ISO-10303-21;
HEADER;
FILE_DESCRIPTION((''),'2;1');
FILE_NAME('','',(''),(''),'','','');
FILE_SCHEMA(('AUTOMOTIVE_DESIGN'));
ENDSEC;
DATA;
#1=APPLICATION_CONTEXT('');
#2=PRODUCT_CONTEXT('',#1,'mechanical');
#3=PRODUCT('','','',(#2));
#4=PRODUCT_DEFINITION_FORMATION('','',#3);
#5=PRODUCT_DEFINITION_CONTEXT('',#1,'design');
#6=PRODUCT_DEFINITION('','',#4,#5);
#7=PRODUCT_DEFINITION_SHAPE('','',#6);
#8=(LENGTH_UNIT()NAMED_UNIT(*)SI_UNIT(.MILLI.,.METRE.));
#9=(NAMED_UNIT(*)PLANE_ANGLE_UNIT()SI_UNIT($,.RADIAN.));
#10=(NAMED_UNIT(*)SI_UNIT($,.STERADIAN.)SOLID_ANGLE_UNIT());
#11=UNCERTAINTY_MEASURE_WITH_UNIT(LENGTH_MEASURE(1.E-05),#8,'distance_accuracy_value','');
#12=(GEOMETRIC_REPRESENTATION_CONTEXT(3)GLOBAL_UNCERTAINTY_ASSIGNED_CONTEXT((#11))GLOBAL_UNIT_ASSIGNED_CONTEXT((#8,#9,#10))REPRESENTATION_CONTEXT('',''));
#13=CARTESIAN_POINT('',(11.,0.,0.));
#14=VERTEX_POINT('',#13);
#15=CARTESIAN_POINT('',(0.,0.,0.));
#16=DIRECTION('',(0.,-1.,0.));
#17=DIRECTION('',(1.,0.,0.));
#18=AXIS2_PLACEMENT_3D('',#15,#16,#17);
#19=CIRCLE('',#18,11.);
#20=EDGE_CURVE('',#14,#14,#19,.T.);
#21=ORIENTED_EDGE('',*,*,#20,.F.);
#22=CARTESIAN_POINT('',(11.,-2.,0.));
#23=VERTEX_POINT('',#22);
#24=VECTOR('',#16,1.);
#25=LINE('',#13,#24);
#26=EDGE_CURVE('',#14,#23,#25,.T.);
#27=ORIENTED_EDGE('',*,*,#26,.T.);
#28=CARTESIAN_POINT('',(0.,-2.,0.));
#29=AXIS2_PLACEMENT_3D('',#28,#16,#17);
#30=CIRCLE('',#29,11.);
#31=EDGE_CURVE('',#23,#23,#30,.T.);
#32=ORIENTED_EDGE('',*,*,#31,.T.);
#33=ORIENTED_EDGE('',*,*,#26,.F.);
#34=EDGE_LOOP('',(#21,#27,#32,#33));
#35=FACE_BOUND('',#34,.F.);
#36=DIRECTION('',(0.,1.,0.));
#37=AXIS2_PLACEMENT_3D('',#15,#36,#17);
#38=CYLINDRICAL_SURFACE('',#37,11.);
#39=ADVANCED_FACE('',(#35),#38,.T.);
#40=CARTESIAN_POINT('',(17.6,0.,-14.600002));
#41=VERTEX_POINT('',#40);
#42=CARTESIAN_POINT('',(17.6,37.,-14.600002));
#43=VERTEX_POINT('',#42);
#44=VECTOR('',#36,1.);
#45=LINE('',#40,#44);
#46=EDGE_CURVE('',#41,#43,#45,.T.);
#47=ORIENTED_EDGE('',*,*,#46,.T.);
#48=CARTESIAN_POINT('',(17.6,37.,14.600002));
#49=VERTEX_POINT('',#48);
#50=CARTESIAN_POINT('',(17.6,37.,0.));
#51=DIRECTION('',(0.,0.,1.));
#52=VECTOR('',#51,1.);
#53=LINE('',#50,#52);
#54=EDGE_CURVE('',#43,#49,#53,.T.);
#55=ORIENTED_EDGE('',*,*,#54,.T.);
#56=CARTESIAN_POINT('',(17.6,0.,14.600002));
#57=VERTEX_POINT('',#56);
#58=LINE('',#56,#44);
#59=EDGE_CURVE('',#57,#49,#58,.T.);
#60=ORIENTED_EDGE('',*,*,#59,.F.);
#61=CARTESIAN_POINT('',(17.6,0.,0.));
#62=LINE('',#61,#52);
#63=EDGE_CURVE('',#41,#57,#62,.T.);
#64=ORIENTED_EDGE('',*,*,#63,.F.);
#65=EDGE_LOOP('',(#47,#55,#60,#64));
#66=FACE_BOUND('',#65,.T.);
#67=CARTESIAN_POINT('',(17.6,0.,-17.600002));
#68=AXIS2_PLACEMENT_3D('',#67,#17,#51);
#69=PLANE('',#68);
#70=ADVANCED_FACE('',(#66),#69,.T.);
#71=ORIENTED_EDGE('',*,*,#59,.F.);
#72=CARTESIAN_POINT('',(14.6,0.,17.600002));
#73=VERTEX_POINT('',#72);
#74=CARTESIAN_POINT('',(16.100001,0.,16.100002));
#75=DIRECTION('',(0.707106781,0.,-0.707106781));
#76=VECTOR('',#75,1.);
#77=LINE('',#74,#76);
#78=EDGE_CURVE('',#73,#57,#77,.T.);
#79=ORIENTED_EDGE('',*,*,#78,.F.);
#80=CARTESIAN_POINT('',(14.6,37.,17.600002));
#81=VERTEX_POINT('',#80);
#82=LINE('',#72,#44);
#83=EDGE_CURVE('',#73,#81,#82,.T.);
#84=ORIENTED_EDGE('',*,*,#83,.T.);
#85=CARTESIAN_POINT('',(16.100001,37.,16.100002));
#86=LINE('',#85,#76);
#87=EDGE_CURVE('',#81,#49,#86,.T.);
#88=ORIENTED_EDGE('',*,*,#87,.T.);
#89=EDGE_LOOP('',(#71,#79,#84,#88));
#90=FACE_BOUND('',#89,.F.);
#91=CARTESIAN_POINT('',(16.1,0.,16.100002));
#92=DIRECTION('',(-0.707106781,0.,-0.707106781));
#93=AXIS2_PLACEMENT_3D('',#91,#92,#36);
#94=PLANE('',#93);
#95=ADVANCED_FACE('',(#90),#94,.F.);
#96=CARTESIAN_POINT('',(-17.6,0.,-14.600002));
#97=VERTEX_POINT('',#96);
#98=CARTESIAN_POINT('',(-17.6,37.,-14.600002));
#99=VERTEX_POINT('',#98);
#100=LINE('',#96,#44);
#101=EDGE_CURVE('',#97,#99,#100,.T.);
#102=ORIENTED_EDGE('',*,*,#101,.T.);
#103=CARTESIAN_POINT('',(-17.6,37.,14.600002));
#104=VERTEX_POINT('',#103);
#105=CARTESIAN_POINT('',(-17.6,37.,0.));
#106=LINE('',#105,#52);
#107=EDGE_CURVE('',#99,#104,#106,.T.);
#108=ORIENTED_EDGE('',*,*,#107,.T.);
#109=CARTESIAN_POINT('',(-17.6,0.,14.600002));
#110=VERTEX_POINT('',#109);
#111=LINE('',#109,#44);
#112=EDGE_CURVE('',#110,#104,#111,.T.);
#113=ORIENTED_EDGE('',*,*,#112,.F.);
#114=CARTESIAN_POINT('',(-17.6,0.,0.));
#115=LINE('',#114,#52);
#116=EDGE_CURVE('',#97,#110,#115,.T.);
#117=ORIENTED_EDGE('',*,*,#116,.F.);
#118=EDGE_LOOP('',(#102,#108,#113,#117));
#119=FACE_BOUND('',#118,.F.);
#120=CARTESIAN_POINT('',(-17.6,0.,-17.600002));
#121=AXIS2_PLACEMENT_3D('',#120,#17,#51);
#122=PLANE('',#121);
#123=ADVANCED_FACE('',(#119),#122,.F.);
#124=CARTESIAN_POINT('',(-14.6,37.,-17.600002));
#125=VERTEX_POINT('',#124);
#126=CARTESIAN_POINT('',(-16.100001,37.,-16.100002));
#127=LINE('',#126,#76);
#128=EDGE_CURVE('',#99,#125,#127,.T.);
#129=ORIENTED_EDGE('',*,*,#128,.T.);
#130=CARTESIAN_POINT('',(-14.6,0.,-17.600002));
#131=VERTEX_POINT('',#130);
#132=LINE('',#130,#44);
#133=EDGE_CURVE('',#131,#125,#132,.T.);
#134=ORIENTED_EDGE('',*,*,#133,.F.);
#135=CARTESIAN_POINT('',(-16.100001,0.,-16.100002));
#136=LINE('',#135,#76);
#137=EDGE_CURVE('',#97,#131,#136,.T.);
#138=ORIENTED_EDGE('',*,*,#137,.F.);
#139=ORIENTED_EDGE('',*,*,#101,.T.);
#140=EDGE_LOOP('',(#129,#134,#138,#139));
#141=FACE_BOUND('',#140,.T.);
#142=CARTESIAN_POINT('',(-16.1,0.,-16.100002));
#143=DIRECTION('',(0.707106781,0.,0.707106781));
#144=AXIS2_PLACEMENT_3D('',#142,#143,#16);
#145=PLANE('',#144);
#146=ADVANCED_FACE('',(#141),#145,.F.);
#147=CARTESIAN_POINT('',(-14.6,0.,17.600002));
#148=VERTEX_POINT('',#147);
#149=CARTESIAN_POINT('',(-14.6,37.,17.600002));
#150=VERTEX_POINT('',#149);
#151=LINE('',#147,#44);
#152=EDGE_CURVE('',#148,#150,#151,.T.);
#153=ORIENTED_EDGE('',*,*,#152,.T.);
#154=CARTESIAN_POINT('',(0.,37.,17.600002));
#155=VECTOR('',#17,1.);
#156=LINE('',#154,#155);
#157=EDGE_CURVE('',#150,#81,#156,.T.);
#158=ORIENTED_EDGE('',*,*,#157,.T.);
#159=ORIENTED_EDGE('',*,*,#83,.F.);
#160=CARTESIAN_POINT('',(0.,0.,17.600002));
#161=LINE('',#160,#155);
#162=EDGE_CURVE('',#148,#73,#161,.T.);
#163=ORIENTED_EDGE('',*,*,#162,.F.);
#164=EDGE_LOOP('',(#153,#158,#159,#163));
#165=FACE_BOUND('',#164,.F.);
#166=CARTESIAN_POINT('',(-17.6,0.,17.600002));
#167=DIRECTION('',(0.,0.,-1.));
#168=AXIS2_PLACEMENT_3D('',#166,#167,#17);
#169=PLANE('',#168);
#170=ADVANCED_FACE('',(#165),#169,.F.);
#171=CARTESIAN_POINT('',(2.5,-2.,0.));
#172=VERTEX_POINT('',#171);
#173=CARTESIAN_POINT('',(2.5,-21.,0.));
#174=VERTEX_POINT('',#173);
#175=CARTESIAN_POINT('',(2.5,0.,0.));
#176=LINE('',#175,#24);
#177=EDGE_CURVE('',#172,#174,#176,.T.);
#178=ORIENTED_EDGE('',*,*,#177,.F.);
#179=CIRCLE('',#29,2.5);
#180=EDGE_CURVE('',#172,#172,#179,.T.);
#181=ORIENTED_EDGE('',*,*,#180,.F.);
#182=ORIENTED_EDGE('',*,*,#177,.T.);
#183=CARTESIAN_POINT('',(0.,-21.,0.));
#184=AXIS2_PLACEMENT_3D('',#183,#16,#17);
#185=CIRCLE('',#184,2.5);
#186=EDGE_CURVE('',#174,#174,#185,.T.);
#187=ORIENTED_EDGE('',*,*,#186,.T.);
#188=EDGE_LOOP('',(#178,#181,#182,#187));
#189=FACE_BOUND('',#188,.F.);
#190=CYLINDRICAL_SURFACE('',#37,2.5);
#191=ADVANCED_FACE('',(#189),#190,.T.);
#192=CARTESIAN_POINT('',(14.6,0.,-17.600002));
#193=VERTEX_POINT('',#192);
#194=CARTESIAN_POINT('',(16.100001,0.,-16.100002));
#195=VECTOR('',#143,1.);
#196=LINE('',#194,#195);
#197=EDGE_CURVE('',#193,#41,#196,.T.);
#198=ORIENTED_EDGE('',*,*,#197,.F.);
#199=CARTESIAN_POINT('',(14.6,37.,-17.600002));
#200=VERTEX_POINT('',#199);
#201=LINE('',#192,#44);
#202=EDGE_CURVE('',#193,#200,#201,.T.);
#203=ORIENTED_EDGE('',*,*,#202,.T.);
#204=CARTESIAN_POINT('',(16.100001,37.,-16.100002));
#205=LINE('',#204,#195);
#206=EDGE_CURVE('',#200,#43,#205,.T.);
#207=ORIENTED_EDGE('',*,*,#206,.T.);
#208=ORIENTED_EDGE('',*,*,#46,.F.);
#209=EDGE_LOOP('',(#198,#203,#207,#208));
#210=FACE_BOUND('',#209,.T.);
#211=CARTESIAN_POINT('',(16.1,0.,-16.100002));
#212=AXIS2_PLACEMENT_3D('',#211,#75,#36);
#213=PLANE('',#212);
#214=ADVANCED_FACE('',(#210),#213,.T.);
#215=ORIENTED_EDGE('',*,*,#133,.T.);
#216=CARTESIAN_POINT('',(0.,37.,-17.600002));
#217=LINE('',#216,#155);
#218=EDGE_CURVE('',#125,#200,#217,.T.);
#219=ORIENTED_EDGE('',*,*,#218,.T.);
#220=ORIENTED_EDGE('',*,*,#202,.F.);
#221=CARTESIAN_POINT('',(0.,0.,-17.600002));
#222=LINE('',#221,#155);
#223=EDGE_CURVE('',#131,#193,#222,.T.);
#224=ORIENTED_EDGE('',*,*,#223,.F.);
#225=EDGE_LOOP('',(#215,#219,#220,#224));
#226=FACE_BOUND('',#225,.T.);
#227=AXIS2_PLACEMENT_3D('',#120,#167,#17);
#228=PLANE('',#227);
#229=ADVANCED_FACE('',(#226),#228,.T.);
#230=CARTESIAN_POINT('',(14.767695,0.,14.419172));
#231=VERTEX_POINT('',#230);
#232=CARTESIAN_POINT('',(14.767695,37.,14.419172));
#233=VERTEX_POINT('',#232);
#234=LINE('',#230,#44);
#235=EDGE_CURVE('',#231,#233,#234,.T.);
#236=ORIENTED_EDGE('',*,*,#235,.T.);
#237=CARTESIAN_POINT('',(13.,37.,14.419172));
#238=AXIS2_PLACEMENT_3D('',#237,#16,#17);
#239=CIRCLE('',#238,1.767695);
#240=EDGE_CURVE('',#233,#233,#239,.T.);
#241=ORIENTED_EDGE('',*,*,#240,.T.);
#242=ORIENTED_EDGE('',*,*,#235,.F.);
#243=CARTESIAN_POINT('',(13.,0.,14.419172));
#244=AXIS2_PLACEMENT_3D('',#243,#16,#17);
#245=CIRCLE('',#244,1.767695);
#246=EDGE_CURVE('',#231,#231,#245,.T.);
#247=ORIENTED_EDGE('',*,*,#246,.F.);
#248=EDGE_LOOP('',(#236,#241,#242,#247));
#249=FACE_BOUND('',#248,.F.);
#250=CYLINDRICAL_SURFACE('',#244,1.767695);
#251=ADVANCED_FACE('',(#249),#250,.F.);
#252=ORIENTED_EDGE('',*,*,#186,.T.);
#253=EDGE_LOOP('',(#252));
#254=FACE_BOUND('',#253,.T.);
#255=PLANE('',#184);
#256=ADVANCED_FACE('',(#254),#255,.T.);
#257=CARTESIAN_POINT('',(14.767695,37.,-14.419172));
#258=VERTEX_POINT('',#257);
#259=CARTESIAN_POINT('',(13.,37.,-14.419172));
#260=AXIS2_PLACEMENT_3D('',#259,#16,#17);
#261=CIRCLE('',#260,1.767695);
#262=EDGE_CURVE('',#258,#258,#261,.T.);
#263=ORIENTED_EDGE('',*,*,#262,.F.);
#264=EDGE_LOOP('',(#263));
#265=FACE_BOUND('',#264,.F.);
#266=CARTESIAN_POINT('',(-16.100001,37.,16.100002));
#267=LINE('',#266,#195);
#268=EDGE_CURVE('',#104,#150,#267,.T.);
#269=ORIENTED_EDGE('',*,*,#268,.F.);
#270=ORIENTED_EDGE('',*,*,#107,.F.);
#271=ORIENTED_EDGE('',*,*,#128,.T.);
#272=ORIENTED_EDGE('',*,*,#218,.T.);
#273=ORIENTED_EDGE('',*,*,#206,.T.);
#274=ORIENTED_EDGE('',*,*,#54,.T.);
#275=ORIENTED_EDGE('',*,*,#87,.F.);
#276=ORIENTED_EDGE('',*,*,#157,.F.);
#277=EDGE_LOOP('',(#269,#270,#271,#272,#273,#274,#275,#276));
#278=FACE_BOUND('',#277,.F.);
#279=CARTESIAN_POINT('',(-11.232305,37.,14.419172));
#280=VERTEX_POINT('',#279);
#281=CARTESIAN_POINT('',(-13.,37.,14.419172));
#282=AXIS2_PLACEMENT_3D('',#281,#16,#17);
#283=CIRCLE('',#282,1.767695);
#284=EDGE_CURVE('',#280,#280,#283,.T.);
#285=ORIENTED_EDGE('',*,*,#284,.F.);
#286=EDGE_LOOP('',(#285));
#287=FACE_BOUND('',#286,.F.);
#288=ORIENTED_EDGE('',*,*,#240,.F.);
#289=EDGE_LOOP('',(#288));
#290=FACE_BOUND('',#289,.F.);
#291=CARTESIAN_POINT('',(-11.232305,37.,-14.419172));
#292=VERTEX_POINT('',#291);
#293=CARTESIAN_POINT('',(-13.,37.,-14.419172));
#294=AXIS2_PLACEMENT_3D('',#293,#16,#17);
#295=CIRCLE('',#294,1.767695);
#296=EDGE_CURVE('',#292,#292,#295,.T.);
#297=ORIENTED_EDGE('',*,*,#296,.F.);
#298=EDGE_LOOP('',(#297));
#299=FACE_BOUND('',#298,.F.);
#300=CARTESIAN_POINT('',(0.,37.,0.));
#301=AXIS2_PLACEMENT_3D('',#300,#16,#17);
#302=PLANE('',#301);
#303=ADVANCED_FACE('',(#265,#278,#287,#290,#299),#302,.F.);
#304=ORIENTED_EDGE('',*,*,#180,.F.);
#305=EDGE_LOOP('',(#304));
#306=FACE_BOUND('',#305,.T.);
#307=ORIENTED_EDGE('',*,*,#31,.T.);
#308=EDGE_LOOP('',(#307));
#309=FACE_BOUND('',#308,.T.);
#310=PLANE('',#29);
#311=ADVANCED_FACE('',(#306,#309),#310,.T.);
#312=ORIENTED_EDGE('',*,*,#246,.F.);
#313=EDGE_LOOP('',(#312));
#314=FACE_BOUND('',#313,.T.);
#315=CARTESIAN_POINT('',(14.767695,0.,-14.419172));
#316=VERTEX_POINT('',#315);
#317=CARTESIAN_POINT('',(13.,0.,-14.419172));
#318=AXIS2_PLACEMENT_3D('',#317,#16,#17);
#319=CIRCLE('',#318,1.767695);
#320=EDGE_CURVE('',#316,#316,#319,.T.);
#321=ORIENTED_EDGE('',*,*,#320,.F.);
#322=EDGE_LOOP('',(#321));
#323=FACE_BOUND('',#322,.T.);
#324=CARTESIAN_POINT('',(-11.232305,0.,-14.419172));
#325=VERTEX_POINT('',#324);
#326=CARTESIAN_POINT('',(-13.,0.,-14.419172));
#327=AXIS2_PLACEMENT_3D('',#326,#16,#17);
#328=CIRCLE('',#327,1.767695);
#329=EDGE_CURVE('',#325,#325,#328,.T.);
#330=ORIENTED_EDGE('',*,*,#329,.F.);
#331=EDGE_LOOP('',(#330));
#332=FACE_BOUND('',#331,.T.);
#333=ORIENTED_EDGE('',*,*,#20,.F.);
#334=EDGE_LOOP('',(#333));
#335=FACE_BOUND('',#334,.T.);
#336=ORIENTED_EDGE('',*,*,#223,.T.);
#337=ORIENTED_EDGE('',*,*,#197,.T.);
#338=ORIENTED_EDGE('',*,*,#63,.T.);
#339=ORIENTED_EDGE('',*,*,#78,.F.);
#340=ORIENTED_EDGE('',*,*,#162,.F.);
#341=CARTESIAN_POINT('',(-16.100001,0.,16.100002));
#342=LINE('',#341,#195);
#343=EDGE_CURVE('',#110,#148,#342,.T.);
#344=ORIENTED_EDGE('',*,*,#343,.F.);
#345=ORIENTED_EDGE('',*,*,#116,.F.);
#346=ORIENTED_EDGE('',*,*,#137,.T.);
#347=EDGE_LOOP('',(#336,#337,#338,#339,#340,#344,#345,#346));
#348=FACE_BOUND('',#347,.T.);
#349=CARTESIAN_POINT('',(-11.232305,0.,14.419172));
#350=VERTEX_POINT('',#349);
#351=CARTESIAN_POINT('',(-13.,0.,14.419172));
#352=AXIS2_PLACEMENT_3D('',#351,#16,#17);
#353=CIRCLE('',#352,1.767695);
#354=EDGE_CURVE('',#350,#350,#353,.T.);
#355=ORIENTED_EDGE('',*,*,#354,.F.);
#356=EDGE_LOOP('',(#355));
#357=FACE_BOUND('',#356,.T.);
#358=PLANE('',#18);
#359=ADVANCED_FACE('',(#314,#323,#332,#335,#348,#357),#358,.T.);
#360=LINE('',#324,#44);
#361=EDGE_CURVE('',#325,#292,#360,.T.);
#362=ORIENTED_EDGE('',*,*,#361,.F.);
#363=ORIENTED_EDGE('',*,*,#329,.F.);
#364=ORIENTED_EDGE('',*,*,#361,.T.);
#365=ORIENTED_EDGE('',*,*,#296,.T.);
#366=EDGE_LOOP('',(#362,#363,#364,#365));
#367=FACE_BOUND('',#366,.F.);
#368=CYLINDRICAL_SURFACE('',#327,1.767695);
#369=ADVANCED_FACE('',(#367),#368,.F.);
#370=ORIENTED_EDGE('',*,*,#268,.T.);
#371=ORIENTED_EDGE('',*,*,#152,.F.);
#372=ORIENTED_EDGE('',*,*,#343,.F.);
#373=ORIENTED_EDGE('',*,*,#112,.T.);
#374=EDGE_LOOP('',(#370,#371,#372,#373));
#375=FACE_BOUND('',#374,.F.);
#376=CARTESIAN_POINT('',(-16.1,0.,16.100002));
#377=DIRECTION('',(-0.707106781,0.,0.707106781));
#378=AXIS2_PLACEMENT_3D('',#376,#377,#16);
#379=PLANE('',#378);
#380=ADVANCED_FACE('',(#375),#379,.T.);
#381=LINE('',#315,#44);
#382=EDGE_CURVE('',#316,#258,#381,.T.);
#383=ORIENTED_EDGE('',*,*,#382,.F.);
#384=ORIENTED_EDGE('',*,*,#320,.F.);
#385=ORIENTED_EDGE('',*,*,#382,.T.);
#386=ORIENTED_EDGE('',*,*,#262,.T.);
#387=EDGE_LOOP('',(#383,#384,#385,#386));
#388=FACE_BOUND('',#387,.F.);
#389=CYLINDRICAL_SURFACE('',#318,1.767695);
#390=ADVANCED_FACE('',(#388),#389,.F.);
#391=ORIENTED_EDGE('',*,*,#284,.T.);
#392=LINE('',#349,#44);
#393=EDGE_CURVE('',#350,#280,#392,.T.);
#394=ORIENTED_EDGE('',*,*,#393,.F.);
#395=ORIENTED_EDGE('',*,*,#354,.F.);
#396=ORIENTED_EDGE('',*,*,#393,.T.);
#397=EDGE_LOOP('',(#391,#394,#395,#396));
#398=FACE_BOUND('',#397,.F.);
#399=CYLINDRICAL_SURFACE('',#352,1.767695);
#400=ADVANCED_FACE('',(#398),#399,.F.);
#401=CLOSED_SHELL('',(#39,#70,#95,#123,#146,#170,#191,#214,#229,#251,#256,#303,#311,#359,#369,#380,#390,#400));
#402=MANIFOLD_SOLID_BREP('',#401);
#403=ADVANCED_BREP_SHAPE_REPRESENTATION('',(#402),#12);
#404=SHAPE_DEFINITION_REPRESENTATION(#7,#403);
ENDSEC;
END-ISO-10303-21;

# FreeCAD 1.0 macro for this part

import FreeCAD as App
import Part
import Sketcher


def edges_at(feature, points):
    """Names of the edges that pass closest to the given points."""
    edges = feature.Shape.Edges
    near = lambda p: min(range(len(edges)), key=lambda i: edges[i].distToShape(Part.Vertex(*p))[0])
    return sorted({f"Edge{near(p) + 1}" for p in points})


def add_polygon(sketch, points):
    """Adds a closed chain of lines whose ends are joined by coincident constraints."""
    first, n = sketch.GeometryCount, len(points)
    for a, b in zip(points, points[1:] + points[:1]):
        sketch.addGeometry(Part.LineSegment(App.Vector(*a, 0), App.Vector(*b, 0)), False)
    for i in range(n):
        sketch.addConstraint(Sketcher.Constraint("Coincident", first + i, 2, first + (i + 1) % n, 1))

doc = App.newDocument("Part")
body = doc.addObject("PartDesign::Body", "Body")

sketch1 = body.newObject("Sketcher::SketchObject", "Sketch")
sketch1.AttachmentSupport = (doc.getObject("XZ_Plane"), [""])
sketch1.MapMode = "FlatFace"
add_polygon(sketch1, [(-17.6, 17.6), (-17.6, -17.6), (17.6, -17.6), (17.6, 17.6)])
sketch1.addGeometry(Part.Circle(App.Vector(-13, -14.4, 0), App.Vector(0, 0, 1), 1.8), False)
sketch1.addGeometry(Part.Circle(App.Vector(13, -14.4, 0), App.Vector(0, 0, 1), 1.8), False)
sketch1.addGeometry(Part.Circle(App.Vector(-13, 14.4, 0), App.Vector(0, 0, 1), 1.8), False)
sketch1.addGeometry(Part.Circle(App.Vector(13, 14.4, 0), App.Vector(0, 0, 1), 1.8), False)
sketch1.addConstraint([
    Sketcher.Constraint("Vertical", 0),
    Sketcher.Constraint("Horizontal", 1),
    Sketcher.Constraint("Vertical", 2),
    Sketcher.Constraint("Horizontal", 3),
    Sketcher.Constraint("Equal", 4, 5),
    Sketcher.Constraint("Equal", 5, 6),
    Sketcher.Constraint("Equal", 6, 7),
    Sketcher.Constraint("Symmetric", 5, 3, 6, 3, -1, 1),
    Sketcher.Constraint("Symmetric", 4, 3, 7, 3, -1, 1),
    Sketcher.Constraint("Symmetric", 0, 2, 2, 2, -1, 1),
    Sketcher.Constraint("Symmetric", 4, 3, 5, 3, -2),
    Sketcher.Constraint("DistanceX", 1, 1, 1, 2, 35.2),
    Sketcher.Constraint("DistanceX", 4, 3, -1, 1, 13.0),
    Sketcher.Constraint("DistanceY", 0, 2, -1, 1, 17.600002),
    Sketcher.Constraint("Diameter", 4, 3.53539),
    Sketcher.Constraint("DistanceY", 0, 2, 4, 3, 3.18083),
])
pad1 = body.newObject("PartDesign::Pad", "Pad")
pad1.Profile = sketch1
pad1.Length = 37
pad1.Reversed = True

sketch2 = body.newObject("Sketcher::SketchObject", "Sketch001")
sketch2.AttachmentSupport = (doc.getObject("XZ_Plane"), [""])
sketch2.MapMode = "FlatFace"
sketch2.addGeometry([
    Part.Circle(App.Vector(0, 0, 0), App.Vector(0, 0, 1), 11),
    Part.Circle(App.Vector(0, 0, 0), App.Vector(0, 0, 1), 2.5),
], False)
sketch2.addConstraint([
    Sketcher.Constraint("Coincident", 0, 3, -1, 1),
    Sketcher.Constraint("Coincident", 1, 3, -1, 1),
    Sketcher.Constraint("Diameter", 0, 22.0),
    Sketcher.Constraint("Diameter", 1, 5.0),
])
pad2 = body.newObject("PartDesign::Pad", "Pad001")
pad2.Profile = sketch2
pad2.Length = 2

sketch3 = body.newObject("Sketcher::SketchObject", "Sketch002")
sketch3.AttachmentSupport = (doc.getObject("XZ_Plane"), [""])
sketch3.MapMode = "FlatFace"
sketch3.addGeometry(Part.Circle(App.Vector(0, 0, 0), App.Vector(0, 0, 1), 2.5), False)
sketch3.addConstraint([
    Sketcher.Constraint("Coincident", 0, 3, -1, 1),
    Sketcher.Constraint("Diameter", 0, 5.0),
])
pad3 = body.newObject("PartDesign::Pad", "Pad002")
pad3.Profile = sketch3
pad3.Length = 21
doc.recompute()

chamfer = body.newObject("PartDesign::Chamfer", "Chamfer")
chamfer.Base = (pad3, edges_at(pad3, [
    (17.6, 18.5, 17.6),
    (-17.6, 18.5, 17.6),
    (17.6, 18.5, -17.6),
    (-17.6, 18.5, -17.6),
]))
chamfer.Size = 3

doc.recompute()
